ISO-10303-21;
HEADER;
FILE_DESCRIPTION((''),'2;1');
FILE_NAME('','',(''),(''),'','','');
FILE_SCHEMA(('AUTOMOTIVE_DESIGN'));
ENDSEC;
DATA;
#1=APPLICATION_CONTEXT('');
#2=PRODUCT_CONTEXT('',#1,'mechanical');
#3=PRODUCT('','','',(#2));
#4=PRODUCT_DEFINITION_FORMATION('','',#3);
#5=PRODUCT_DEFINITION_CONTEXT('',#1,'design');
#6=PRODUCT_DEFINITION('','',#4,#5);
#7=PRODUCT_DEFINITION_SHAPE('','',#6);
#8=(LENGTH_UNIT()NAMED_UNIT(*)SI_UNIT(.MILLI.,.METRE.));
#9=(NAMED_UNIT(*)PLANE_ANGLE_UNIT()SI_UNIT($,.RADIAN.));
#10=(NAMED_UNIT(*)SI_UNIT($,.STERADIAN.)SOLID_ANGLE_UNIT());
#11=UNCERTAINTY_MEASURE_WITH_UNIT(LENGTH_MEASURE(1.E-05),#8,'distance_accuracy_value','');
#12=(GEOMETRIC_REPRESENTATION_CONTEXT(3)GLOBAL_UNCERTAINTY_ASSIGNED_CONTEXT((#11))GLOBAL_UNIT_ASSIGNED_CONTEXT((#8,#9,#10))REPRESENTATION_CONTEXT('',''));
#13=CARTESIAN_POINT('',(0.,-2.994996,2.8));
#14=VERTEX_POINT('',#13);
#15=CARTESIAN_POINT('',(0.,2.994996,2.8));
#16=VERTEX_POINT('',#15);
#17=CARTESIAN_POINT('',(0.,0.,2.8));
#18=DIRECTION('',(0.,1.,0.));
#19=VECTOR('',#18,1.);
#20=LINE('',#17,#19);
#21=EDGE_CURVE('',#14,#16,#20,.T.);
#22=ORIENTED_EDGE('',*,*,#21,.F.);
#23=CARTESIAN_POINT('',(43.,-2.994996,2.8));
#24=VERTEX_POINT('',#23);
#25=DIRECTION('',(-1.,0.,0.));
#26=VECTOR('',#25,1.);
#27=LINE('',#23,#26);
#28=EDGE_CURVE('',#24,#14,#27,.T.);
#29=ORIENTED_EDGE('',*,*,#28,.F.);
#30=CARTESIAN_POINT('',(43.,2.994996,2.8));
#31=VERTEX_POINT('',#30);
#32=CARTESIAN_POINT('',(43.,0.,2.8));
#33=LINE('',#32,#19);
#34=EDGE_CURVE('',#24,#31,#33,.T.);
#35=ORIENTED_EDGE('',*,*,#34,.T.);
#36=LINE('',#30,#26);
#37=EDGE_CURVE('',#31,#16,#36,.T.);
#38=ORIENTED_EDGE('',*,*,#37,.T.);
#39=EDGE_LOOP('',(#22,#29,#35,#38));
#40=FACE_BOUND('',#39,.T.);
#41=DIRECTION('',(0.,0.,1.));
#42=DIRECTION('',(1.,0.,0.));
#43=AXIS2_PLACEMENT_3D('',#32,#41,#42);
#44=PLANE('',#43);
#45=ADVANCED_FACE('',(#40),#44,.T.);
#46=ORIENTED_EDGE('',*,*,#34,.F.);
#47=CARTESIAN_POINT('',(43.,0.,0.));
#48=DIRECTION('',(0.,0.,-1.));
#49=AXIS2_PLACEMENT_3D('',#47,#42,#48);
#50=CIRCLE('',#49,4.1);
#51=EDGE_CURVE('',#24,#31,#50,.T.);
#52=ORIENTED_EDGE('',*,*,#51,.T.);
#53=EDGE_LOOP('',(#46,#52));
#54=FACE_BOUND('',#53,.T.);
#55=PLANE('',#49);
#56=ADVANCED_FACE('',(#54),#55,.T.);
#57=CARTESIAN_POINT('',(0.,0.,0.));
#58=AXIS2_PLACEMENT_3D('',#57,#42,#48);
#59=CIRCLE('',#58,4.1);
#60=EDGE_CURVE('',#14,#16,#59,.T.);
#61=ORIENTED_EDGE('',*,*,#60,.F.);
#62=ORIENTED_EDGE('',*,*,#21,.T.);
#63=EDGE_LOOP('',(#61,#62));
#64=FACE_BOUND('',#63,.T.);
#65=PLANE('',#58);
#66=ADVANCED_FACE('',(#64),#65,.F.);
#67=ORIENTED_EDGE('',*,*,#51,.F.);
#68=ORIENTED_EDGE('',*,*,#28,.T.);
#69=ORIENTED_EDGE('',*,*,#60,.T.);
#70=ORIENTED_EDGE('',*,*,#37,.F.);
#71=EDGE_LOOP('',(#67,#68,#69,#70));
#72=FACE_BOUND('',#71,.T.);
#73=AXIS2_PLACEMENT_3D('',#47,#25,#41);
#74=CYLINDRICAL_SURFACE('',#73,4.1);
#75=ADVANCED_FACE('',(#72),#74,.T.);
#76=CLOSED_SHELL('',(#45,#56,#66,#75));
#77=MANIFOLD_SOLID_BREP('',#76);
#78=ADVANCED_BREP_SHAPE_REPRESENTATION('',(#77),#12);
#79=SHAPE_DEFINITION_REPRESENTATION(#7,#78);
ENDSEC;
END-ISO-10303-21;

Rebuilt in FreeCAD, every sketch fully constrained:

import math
import FreeCAD as App
import Part
import Sketcher
Q = App.Units.Quantity

doc = App.newDocument("Part")
body = doc.addObject("PartDesign::Body", "Body")

# Sketch on YZ plane
sketch1 = body.newObject("Sketcher::SketchObject", "Sketch")
sketch1.AttachmentSupport = (doc.getObject("YZ_Plane"), [""])
sketch1.MapMode = "FlatFace"
sketch1.addGeometry(Part.LineSegment(App.Vector(3, 2.8, 0), App.Vector(-3, 2.8, 0)), False)
sketch1.addGeometry(Part.ArcOfCircle(Part.Circle(App.Vector(0, 0, 0), App.Vector(0, 0, 1), 4.1), math.radians(137), math.radians(270)), False)
sketch1.addGeometry(Part.ArcOfCircle(Part.Circle(App.Vector(0, 0, 0), App.Vector(0, 0, 1), 4.1), math.radians(-90), math.radians(43)), False)
sketch1.addConstraint(Sketcher.Constraint("Coincident", 0, 2, 1, 1))
sketch1.addConstraint(Sketcher.Constraint("Tangent", 1, 2, 2, 1))
sketch1.addConstraint(Sketcher.Constraint("Coincident", 2, 2, 0, 1))
sketch1.addConstraint(Sketcher.Constraint("Horizontal", 0))
sketch1.addConstraint(Sketcher.Constraint("Coincident", 1, 3, -1, 1))
sketch1.addConstraint(Sketcher.Constraint("Equal", 1, 2))
sketch1.addConstraint(Sketcher.Constraint("PointOnObject", 1, 2, -2))
sketch1.addConstraint(Sketcher.Constraint("Radius", 1, Q("4.1 mm")))
sketch1.addConstraint(Sketcher.Constraint("DistanceY", -1, 1, 0, 2, Q("2.8 mm")))
pad1 = body.newObject("PartDesign::Pad", "Pad")
pad1.Profile = sketch1
pad1.Length = 43

doc.recompute()
